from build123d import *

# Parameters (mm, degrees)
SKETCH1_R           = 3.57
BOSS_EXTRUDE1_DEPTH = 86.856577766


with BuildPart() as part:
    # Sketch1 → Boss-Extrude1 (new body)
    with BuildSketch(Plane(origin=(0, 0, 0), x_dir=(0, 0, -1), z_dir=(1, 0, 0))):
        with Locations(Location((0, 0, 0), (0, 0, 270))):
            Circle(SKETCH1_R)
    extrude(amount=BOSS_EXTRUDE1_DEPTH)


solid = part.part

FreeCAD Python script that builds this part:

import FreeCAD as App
import Part
import Sketcher
from FreeCAD import Vector
Q = App.Units.Quantity

doc = App.newDocument("Part")
params = doc.addObject("Spreadsheet::Sheet", "Params")
for row, (alias, value) in enumerate([
    ("sketch1_diameter", "7.14 mm"),
    ("pad1_length", "86.856578 mm"),
], start=1):
    params.set(f"A{row}", alias)
    params.set(f"B{row}", "=" + value)
    params.setAlias(f"B{row}", alias)

body = doc.addObject("PartDesign::Body", "Body")

sketch1 = body.newObject("Sketcher::SketchObject", "Sketch")
sketch1.AttachmentSupport = (doc.getObject("YZ_Plane"), [""])
sketch1.MapMode = "FlatFace"
sketch1.addGeometry(Part.Circle(Vector(0, 0, 0), Vector(0, 0, 1), 3.6), False)
sketch1.addConstraint([
    Sketcher.Constraint("Coincident", 0, 3, -1, 1),
    Sketcher.Constraint("Diameter", 0, Q("7.14 mm")),
])
sketch1.setExpression("Constraints[1]", "Params.sketch1_diameter")
pad1 = body.newObject("PartDesign::Pad", "Pad")
pad1.Profile = sketch1
pad1.setExpression("Length", "Params.pad1_length")

doc.recompute()
